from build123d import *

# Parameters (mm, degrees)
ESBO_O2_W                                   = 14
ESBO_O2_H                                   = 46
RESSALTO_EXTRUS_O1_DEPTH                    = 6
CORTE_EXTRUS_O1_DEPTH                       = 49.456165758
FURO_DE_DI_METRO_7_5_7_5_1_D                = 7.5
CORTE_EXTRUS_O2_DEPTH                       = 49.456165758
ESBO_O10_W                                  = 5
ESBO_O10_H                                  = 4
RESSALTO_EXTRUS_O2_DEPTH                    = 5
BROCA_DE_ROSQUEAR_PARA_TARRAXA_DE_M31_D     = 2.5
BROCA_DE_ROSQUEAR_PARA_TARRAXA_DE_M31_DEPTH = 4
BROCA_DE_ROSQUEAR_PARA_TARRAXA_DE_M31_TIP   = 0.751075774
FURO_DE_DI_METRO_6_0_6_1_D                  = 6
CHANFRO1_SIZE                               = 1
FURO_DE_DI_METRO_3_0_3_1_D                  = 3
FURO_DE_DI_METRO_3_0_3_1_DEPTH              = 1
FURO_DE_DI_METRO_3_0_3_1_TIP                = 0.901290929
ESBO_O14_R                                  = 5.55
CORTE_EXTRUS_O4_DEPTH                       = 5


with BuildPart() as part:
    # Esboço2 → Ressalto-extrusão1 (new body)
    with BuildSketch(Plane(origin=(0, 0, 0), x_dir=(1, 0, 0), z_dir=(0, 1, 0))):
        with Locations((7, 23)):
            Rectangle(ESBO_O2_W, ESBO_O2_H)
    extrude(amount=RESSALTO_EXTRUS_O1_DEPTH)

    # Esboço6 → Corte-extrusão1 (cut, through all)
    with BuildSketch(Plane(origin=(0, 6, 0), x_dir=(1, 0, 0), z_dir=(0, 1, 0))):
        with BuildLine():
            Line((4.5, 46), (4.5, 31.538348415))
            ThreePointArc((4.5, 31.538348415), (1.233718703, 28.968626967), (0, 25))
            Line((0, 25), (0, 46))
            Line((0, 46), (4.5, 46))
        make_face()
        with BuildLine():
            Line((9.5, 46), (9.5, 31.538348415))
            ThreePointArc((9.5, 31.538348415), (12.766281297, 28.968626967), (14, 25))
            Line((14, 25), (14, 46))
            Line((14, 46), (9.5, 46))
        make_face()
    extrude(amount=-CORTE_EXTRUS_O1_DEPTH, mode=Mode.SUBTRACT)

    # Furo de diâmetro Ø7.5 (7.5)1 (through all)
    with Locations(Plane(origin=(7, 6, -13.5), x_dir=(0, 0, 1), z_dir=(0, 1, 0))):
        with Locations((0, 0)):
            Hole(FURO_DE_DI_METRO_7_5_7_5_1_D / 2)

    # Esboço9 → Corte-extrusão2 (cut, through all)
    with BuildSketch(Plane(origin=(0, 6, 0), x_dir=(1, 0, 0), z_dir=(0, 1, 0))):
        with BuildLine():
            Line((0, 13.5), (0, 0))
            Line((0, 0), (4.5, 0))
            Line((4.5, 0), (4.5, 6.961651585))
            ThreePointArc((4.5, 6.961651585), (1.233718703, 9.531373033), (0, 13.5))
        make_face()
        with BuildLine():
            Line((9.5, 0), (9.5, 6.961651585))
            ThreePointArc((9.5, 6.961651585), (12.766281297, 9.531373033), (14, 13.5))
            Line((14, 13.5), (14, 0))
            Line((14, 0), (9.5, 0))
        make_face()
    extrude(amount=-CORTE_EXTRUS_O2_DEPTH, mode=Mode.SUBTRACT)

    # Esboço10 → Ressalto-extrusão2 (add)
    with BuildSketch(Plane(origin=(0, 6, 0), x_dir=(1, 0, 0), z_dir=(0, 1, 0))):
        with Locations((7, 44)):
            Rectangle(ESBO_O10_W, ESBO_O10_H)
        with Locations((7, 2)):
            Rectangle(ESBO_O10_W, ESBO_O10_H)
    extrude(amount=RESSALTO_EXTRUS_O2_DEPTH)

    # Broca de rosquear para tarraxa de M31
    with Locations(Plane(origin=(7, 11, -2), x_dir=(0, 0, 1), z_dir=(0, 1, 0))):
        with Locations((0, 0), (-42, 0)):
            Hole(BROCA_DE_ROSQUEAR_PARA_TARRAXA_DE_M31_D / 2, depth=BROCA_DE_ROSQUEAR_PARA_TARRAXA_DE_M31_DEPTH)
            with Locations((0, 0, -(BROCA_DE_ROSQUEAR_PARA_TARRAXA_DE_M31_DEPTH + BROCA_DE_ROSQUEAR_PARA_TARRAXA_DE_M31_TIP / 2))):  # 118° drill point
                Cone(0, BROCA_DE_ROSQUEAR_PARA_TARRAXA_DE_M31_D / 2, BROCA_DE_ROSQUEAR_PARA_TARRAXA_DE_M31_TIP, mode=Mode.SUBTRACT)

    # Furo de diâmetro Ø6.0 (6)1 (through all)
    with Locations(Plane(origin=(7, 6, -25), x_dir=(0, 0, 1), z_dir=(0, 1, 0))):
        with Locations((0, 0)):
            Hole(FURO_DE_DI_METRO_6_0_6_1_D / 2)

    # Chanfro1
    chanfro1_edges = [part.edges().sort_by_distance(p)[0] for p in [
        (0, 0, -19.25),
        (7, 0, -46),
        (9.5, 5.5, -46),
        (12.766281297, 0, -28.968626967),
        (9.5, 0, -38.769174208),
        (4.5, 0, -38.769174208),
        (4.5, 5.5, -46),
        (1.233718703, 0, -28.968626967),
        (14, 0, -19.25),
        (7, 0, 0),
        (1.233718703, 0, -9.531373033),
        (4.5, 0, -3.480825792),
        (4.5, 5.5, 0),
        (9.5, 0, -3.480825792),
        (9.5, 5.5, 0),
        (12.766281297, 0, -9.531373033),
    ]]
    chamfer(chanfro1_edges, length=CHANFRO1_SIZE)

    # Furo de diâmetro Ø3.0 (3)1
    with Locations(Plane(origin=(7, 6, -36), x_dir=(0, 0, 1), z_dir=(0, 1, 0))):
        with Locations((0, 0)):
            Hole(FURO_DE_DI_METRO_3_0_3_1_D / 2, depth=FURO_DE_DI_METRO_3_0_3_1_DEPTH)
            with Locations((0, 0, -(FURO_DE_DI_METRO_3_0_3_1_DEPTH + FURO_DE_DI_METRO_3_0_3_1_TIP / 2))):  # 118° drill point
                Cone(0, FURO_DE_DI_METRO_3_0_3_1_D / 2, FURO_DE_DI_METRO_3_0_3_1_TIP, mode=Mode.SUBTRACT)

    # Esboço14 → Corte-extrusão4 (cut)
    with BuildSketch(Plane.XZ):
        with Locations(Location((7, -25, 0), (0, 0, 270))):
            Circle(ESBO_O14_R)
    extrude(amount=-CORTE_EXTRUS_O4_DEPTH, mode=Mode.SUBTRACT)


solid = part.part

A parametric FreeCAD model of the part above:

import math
import FreeCAD as App
import Part
import Sketcher
Q = App.Units.Quantity


def edges_at(feature, points):
    """Names of the edges that pass closest to the given points."""
    edges = feature.Shape.Edges
    near = lambda p: min(range(len(edges)), key=lambda i: edges[i].distToShape(Part.Vertex(*p))[0])
    return sorted({f"Edge{near(p) + 1}" for p in points})


def add_polygon(sketch, points):
    """Adds a closed chain of lines whose ends are joined by coincident constraints."""
    first, n = sketch.GeometryCount, len(points)
    for a, b in zip(points, points[1:] + points[:1]):
        sketch.addGeometry(Part.LineSegment(App.Vector(*a, 0), App.Vector(*b, 0)), False)
    for i in range(n):
        sketch.addConstraint(Sketcher.Constraint("Coincident", first + i, 2, first + (i + 1) % n, 1))

doc = App.newDocument("Part")
body = doc.addObject("PartDesign::Body", "Body")

# Sketch on XZ plane
sketch1 = body.newObject("Sketcher::SketchObject", "Sketch")
sketch1.AttachmentSupport = (doc.getObject("XZ_Plane"), [""])
sketch1.MapMode = "FlatFace"
add_polygon(sketch1, [(0, -46), (0, 0), (14, 0), (14, -46)])  # lines 0-3
sketch1.addConstraint(Sketcher.Constraint("Vertical", 0))
sketch1.addConstraint(Sketcher.Constraint("Horizontal", 1))
sketch1.addConstraint(Sketcher.Constraint("Vertical", 2))
sketch1.addConstraint(Sketcher.Constraint("Horizontal", 3))
sketch1.addConstraint(Sketcher.Constraint("Coincident", 0, 2, -1, 1))
sketch1.addConstraint(Sketcher.Constraint("DistanceX", 1, 1, 1, 2, Q("14 mm")))
sketch1.addConstraint(Sketcher.Constraint("DistanceY", 0, 1, 0, 2, Q("46 mm")))
pad1 = body.newObject("PartDesign::Pad", "Pad")
pad1.Profile = sketch1
pad1.Length = 6
pad1.Reversed = True

# Sketch on XZ plane
sketch2 = body.newObject("Sketcher::SketchObject", "Sketch001")
sketch2.AttachmentSupport = (doc.getObject("XZ_Plane"), [""])
sketch2.MapMode = "FlatFace"
sketch2.AttachmentOffset = App.Placement(App.Vector(0, 0, -6), App.Rotation())
sketch2.addGeometry(Part.LineSegment(App.Vector(4.5, -31.5, 0), App.Vector(4.5, -46, 0)), False)
sketch2.addGeometry(Part.LineSegment(App.Vector(4.5, -46, 0), App.Vector(0, -46, 0)), False)
sketch2.addGeometry(Part.LineSegment(App.Vector(0, -46, 0), App.Vector(0, -25, 0)), False)
sketch2.addGeometry(Part.ArcOfCircle(Part.Circle(App.Vector(7, -25, 0), App.Vector(0, 0, 1), 7), math.radians(180), math.radians(249)), False)
sketch2.addGeometry(Part.LineSegment(App.Vector(9.5, -46, 0), App.Vector(9.5, -31.5, 0)), False)
sketch2.addGeometry(Part.ArcOfCircle(Part.Circle(App.Vector(7, -25, 0), App.Vector(0, 0, 1), 7), math.radians(-69), math.radians(0)), False)
sketch2.addGeometry(Part.LineSegment(App.Vector(14, -25, 0), App.Vector(14, -46, 0)), False)
sketch2.addGeometry(Part.LineSegment(App.Vector(14, -46, 0), App.Vector(9.5, -46, 0)), False)
sketch2.addConstraint(Sketcher.Constraint("Coincident", 0, 2, 1, 1))
sketch2.addConstraint(Sketcher.Constraint("Coincident", 1, 2, 2, 1))
sketch2.addConstraint(Sketcher.Constraint("Tangent", 2, 2, 3, 1))
sketch2.addConstraint(Sketcher.Constraint("Coincident", 3, 2, 0, 1))
sketch2.addConstraint(Sketcher.Constraint("Coincident", 4, 2, 5, 1))
sketch2.addConstraint(Sketcher.Constraint("Tangent", 5, 2, 6, 1))
sketch2.addConstraint(Sketcher.Constraint("Coincident", 6, 2, 7, 1))
sketch2.addConstraint(Sketcher.Constraint("Coincident", 7, 2, 4, 1))
sketch2.addConstraint(Sketcher.Constraint("Vertical", 0))
sketch2.addConstraint(Sketcher.Constraint("Horizontal", 1))
sketch2.addConstraint(Sketcher.Constraint("Vertical", 2))
sketch2.addConstraint(Sketcher.Constraint("Vertical", 4))
sketch2.addConstraint(Sketcher.Constraint("Vertical", 6))
sketch2.addConstraint(Sketcher.Constraint("Horizontal", 7))
sketch2.addConstraint(Sketcher.Constraint("Coincident", 5, 3, 3, 3))
sketch2.addConstraint(Sketcher.Constraint("Equal", 3, 5))
sketch2.addConstraint(Sketcher.Constraint("PointOnObject", 1, 2, -2))
sketch2.addConstraint(Sketcher.Constraint("Horizontal", 3, 2, 4, 2))
sketch2.addConstraint(Sketcher.Constraint("Horizontal", 1, 2, 6, 2))
sketch2.addConstraint(Sketcher.Constraint("Radius", 3, Q("7 mm")))
sketch2.addConstraint(Sketcher.Constraint("DistanceY", 2, 1, 2, 2, Q("21 mm")))
sketch2.addConstraint(Sketcher.Constraint("DistanceX", 1, 2, 1, 1, Q("4.5 mm")))
sketch2.addConstraint(Sketcher.Constraint("DistanceY", 3, 3, -1, 1, Q("25 mm")))
pocket1 = body.newObject("PartDesign::Pocket", "Pocket")
pocket1.Profile = sketch2
pocket1.Type = "ThroughAll"
pocket1.Reversed = True

# Sketch on XZ plane
sketch3 = body.newObject("Sketcher::SketchObject", "Sketch002")
sketch3.AttachmentSupport = (doc.getObject("XZ_Plane"), [""])
sketch3.MapMode = "FlatFace"
sketch3.AttachmentOffset = App.Placement(App.Vector(0, 0, -6), App.Rotation())
sketch3.addGeometry(Part.Circle(App.Vector(7, -13.5, 0), App.Vector(0, 0, 1), 3.8), False)
sketch3.addConstraint(Sketcher.Constraint("Diameter", 0, Q("7.5 mm")))
sketch3.addConstraint(Sketcher.Constraint("DistanceX", -1, 1, 0, 3, Q("7 mm")))
sketch3.addConstraint(Sketcher.Constraint("DistanceY", 0, 3, -1, 1, Q("13.5 mm")))
doc.recompute()
hole = body.newObject("PartDesign::Hole", "Hole")
hole.Profile = sketch3
hole.ThreadType = "None"
hole.Diameter = 7.5
hole.DepthType = "ThroughAll"
hole.Reversed = True

# Sketch on XZ plane
sketch4 = body.newObject("Sketcher::SketchObject", "Sketch003")
sketch4.AttachmentSupport = (doc.getObject("XZ_Plane"), [""])
sketch4.MapMode = "FlatFace"
sketch4.AttachmentOffset = App.Placement(App.Vector(0, 0, -6), App.Rotation())
sketch4.addGeometry(Part.LineSegment(App.Vector(0, -13.5, 0), App.Vector(0, 0, 0)), False)
sketch4.addGeometry(Part.LineSegment(App.Vector(0, 0, 0), App.Vector(4.5, 0, 0)), False)
sketch4.addGeometry(Part.LineSegment(App.Vector(4.5, 0, 0), App.Vector(4.5, -7, 0)), False)
sketch4.addGeometry(Part.ArcOfCircle(Part.Circle(App.Vector(7, -13.5, 0), App.Vector(0, 0, 1), 7), math.radians(111), math.radians(180)), False)
sketch4.addGeometry(Part.LineSegment(App.Vector(9.5, -7, 0), App.Vector(9.5, 0, 0)), False)
sketch4.addGeometry(Part.LineSegment(App.Vector(9.5, 0, 0), App.Vector(14, 0, 0)), False)
sketch4.addGeometry(Part.LineSegment(App.Vector(14, 0, 0), App.Vector(14, -13.5, 0)), False)
sketch4.addGeometry(Part.ArcOfCircle(Part.Circle(App.Vector(7, -13.5, 0), App.Vector(0, 0, 1), 7), math.radians(0), math.radians(69)), False)
sketch4.addConstraint(Sketcher.Constraint("Coincident", 0, 2, 1, 1))
sketch4.addConstraint(Sketcher.Constraint("Coincident", 1, 2, 2, 1))
sketch4.addConstraint(Sketcher.Constraint("Coincident", 2, 2, 3, 1))
sketch4.addConstraint(Sketcher.Constraint("Tangent", 3, 2, 0, 1))
sketch4.addConstraint(Sketcher.Constraint("Coincident", 4, 2, 5, 1))
sketch4.addConstraint(Sketcher.Constraint("Coincident", 5, 2, 6, 1))
sketch4.addConstraint(Sketcher.Constraint("Tangent", 6, 2, 7, 1))
sketch4.addConstraint(Sketcher.Constraint("Coincident", 7, 2, 4, 1))
sketch4.addConstraint(Sketcher.Constraint("Vertical", 0))
sketch4.addConstraint(Sketcher.Constraint("Horizontal", 1))
sketch4.addConstraint(Sketcher.Constraint("Vertical", 2))
sketch4.addConstraint(Sketcher.Constraint("Vertical", 4))
sketch4.addConstraint(Sketcher.Constraint("Horizontal", 5))
sketch4.addConstraint(Sketcher.Constraint("Vertical", 6))
sketch4.addConstraint(Sketcher.Constraint("Coincident", 0, 2, -1, 1))
sketch4.addConstraint(Sketcher.Constraint("Coincident", 7, 3, 3, 3))
sketch4.addConstraint(Sketcher.Constraint("Equal", 3, 7))
sketch4.addConstraint(Sketcher.Constraint("PointOnObject", 4, 2, -1))
sketch4.addConstraint(Sketcher.Constraint("Horizontal", 2, 2, 7, 2))
sketch4.addConstraint(Sketcher.Constraint("Radius", 3, Q("7 mm")))
sketch4.addConstraint(Sketcher.Constraint("DistanceX", 1, 1, 1, 2, Q("4.5 mm")))
sketch4.addConstraint(Sketcher.Constraint("DistanceY", 0, 1, 0, 2, Q("13.5 mm")))
pocket2 = body.newObject("PartDesign::Pocket", "Pocket001")
pocket2.Profile = sketch4
pocket2.Type = "ThroughAll"
pocket2.Reversed = True

# Sketch on XZ plane
sketch5 = body.newObject("Sketcher::SketchObject", "Sketch004")
sketch5.AttachmentSupport = (doc.getObject("XZ_Plane"), [""])
sketch5.MapMode = "FlatFace"
sketch5.AttachmentOffset = App.Placement(App.Vector(0, 0, -6), App.Rotation())
add_polygon(sketch5, [(4.5, -46), (4.5, -42), (9.5, -42), (9.5, -46)])  # lines 0-3
add_polygon(sketch5, [(4.5, -4), (4.5, 0), (9.5, 0), (9.5, -4)])  # lines 4-7
sketch5.addConstraint(Sketcher.Constraint("Vertical", 0))
sketch5.addConstraint(Sketcher.Constraint("Horizontal", 1))
sketch5.addConstraint(Sketcher.Constraint("Vertical", 2))
sketch5.addConstraint(Sketcher.Constraint("Horizontal", 3))
sketch5.addConstraint(Sketcher.Constraint("Vertical", 4))
sketch5.addConstraint(Sketcher.Constraint("Horizontal", 5))
sketch5.addConstraint(Sketcher.Constraint("Vertical", 6))
sketch5.addConstraint(Sketcher.Constraint("Horizontal", 7))
sketch5.addConstraint(Sketcher.Constraint("PointOnObject", 4, 2, -1))
sketch5.addConstraint(Sketcher.Constraint("Vertical", 3, 2, 4, 2))
sketch5.addConstraint(Sketcher.Constraint("Vertical", 2, 2, 5, 2))
sketch5.addConstraint(Sketcher.Constraint("Equal", 2, 4))
sketch5.addConstraint(Sketcher.Constraint("DistanceX", 1, 1, 1, 2, Q("5 mm")))
sketch5.addConstraint(Sketcher.Constraint("DistanceY", 0, 1, 0, 2, Q("4 mm")))
sketch5.addConstraint(Sketcher.Constraint("DistanceY", 0, 2, -1, 1, Q("42 mm")))
sketch5.addConstraint(Sketcher.Constraint("DistanceX", -1, 1, 0, 2, Q("4.5 mm")))
pad2 = body.newObject("PartDesign::Pad", "Pad001")
pad2.Profile = sketch5
pad2.Length = 5
pad2.Reversed = True

# Sketch on XZ plane
sketch6 = body.newObject("Sketcher::SketchObject", "Sketch005")
sketch6.AttachmentSupport = (doc.getObject("XZ_Plane"), [""])
sketch6.MapMode = "FlatFace"
sketch6.AttachmentOffset = App.Placement(App.Vector(0, 0, -11), App.Rotation())
sketch6.addGeometry(Part.Circle(App.Vector(7, -2, 0), App.Vector(0, 0, 1), 1.2), False)
sketch6.addGeometry(Part.Circle(App.Vector(7, -44, 0), App.Vector(0, 0, 1), 1.2), False)
sketch6.addConstraint(Sketcher.Constraint("Equal", 0, 1))
sketch6.addConstraint(Sketcher.Constraint("Vertical", 0, 3, 1, 3))
sketch6.addConstraint(Sketcher.Constraint("Diameter", 0, Q("2.5 mm")))
sketch6.addConstraint(Sketcher.Constraint("DistanceX", -1, 1, 0, 3, Q("7 mm")))
sketch6.addConstraint(Sketcher.Constraint("DistanceY", 0, 3, -1, 1, Q("2 mm")))
sketch6.addConstraint(Sketcher.Constraint("DistanceY", 1, 3, -1, 1, Q("44 mm")))
doc.recompute()
hole2 = body.newObject("PartDesign::Hole", "Hole001")
hole2.Profile = sketch6
hole2.ThreadType = "None"
hole2.Diameter = 2.5
hole2.DepthType = "Dimension"
hole2.Depth = 4
hole2.DrillPoint = "Angled"
hole2.DrillPointAngle = 118
hole2.Reversed = True

# Sketch on XZ plane
sketch7 = body.newObject("Sketcher::SketchObject", "Sketch006")
sketch7.AttachmentSupport = (doc.getObject("XZ_Plane"), [""])
sketch7.MapMode = "FlatFace"
sketch7.AttachmentOffset = App.Placement(App.Vector(0, 0, -6), App.Rotation())
sketch7.addGeometry(Part.Circle(App.Vector(7, -25, 0), App.Vector(0, 0, 1), 3), False)
sketch7.addConstraint(Sketcher.Constraint("Diameter", 0, Q("6 mm")))
sketch7.addConstraint(Sketcher.Constraint("DistanceX", -1, 1, 0, 3, Q("7 mm")))
sketch7.addConstraint(Sketcher.Constraint("DistanceY", 0, 3, -1, 1, Q("25 mm")))
doc.recompute()
hole3 = body.newObject("PartDesign::Hole", "Hole002")
hole3.Profile = sketch7
hole3.ThreadType = "None"
hole3.Diameter = 6
hole3.DepthType = "ThroughAll"
hole3.Reversed = True
doc.recompute()

chamfer = body.newObject("PartDesign::Chamfer", "Chamfer")
chamfer.Base = (hole3, edges_at(hole3, [
    (0, 0, -19.25),
    (7, 0, -46),
    (9.5, 5.5, -46),
    (12.766, 0, -28.969),
    (9.5, 0, -38.769),
    (4.5, 0, -38.769),
    (4.5, 5.5, -46),
    (1.234, 0, -28.969),
    (14, 0, -19.25),
    (7, 0, 0),
    (1.234, 0, -9.531),
    (4.5, 0, -3.481),
    (4.5, 5.5, 0),
    (9.5, 0, -3.481),
    (9.5, 5.5, 0),
    (12.766, 0, -9.531),
]))
chamfer.Size = 1

# Sketch on XZ plane
sketch8 = body.newObject("Sketcher::SketchObject", "Sketch007")
sketch8.AttachmentSupport = (doc.getObject("XZ_Plane"), [""])
sketch8.MapMode = "FlatFace"
sketch8.AttachmentOffset = App.Placement(App.Vector(0, 0, -6), App.Rotation())
sketch8.addGeometry(Part.Circle(App.Vector(7, -36, 0), App.Vector(0, 0, 1), 1.5), False)
sketch8.addConstraint(Sketcher.Constraint("Diameter", 0, Q("3 mm")))
sketch8.addConstraint(Sketcher.Constraint("DistanceX", -1, 1, 0, 3, Q("7 mm")))
sketch8.addConstraint(Sketcher.Constraint("DistanceY", 0, 3, -1, 1, Q("36 mm")))
doc.recompute()
hole4 = body.newObject("PartDesign::Hole", "Hole003")
hole4.Profile = sketch8
hole4.ThreadType = "None"
hole4.Diameter = 3
hole4.DepthType = "Dimension"
hole4.Depth = 1
hole4.DrillPoint = "Angled"
hole4.DrillPointAngle = 118
hole4.Reversed = True

# Sketch on XZ plane
sketch9 = body.newObject("Sketcher::SketchObject", "Sketch008")
sketch9.AttachmentSupport = (doc.getObject("XZ_Plane"), [""])
sketch9.MapMode = "FlatFace"
sketch9.addGeometry(Part.Circle(App.Vector(7, -25, 0), App.Vector(0, 0, 1), 6), False)
sketch9.addConstraint(Sketcher.Constraint("Diameter", 0, Q("11.1 mm")))
sketch9.addConstraint(Sketcher.Constraint("DistanceX", -1, 1, 0, 3, Q("7 mm")))
sketch9.addConstraint(Sketcher.Constraint("DistanceY", 0, 3, -1, 1, Q("25 mm")))
pocket3 = body.newObject("PartDesign::Pocket", "Pocket002")
pocket3.Profile = sketch9
pocket3.Length = 5

doc.recompute()
